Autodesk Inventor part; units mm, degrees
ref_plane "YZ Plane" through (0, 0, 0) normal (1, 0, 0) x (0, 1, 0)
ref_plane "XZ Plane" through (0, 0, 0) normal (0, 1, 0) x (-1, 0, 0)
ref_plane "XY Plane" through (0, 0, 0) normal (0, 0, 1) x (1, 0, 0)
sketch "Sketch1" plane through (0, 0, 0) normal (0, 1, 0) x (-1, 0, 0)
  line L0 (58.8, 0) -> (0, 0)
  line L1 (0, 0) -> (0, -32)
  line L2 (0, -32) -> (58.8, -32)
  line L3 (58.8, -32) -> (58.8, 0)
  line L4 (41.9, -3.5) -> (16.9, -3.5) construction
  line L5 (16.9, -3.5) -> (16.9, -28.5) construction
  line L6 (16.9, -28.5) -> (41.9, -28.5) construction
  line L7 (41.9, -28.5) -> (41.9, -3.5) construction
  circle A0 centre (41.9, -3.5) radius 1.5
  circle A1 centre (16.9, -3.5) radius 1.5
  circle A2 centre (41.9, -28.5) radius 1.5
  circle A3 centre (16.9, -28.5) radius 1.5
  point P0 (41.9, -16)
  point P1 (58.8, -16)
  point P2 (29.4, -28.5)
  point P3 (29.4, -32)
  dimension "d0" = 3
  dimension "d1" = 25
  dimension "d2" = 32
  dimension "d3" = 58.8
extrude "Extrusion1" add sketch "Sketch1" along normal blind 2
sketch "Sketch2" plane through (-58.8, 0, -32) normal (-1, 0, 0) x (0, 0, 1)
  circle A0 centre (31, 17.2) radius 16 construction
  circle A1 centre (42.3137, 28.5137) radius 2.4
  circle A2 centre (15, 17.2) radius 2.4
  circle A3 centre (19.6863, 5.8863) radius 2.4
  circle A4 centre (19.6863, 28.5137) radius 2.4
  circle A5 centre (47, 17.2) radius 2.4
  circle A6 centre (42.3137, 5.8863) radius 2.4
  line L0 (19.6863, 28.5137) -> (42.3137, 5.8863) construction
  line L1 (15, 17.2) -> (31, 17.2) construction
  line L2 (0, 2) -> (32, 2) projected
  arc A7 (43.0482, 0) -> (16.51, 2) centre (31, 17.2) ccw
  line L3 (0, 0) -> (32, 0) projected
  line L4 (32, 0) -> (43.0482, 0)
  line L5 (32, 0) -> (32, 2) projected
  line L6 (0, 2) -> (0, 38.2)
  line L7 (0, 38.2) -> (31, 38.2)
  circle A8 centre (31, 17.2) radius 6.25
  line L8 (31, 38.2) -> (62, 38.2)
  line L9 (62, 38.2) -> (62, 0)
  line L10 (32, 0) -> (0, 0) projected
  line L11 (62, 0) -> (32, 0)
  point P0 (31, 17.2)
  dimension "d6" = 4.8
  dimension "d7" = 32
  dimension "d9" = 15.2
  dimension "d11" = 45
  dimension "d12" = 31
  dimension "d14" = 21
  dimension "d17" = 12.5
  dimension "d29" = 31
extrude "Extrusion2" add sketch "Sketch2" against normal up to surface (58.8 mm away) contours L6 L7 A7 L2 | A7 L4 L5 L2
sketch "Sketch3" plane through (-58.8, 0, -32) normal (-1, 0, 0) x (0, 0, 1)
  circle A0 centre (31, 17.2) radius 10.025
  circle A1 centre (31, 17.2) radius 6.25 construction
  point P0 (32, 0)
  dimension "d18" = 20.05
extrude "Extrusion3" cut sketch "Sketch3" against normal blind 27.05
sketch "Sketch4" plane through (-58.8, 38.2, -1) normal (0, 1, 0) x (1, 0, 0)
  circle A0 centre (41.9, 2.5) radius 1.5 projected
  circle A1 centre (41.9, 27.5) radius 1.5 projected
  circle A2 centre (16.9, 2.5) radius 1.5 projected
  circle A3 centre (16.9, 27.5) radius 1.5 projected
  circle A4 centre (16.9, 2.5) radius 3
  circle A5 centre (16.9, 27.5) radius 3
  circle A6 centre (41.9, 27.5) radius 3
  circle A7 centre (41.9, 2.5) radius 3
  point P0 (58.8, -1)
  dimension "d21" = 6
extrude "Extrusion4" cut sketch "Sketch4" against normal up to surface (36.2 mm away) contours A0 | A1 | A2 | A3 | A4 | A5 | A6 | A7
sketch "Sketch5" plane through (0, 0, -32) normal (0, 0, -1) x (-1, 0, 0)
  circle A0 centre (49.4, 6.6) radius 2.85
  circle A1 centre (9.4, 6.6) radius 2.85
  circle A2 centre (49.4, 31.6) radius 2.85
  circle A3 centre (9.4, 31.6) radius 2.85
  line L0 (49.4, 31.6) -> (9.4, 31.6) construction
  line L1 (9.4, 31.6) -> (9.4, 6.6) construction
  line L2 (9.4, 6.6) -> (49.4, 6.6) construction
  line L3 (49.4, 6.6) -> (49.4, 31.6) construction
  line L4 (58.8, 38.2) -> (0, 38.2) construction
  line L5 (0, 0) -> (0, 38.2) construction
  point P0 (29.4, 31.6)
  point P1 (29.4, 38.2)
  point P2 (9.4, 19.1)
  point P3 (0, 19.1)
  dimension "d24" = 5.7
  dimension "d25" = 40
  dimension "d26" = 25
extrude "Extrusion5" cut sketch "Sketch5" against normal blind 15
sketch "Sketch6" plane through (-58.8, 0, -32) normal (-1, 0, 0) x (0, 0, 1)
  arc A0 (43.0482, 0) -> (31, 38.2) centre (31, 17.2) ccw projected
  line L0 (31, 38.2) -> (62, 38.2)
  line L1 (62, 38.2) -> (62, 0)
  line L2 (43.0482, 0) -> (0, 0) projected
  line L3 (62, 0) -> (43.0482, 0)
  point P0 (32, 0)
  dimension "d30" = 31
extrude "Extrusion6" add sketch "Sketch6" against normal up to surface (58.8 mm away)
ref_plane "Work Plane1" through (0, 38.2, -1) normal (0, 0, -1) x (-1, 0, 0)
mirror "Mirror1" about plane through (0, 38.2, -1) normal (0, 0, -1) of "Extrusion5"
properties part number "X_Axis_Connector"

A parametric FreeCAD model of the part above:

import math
import FreeCAD as App
import Part
import Sketcher
from FreeCAD import Vector
Q = App.Units.Quantity

doc = App.newDocument("Part")
params = doc.addObject("Spreadsheet::Sheet", "Params")
for row, (alias, value) in enumerate([
    ("sketch1_diameter", "3 mm"),
    ("sketch1_height", "32 mm"),
    ("sketch1_width", "58.8 mm"),
    ("pad1_length", "2 mm"),
    ("sketch2_radius", "21 mm"),
    ("sketch2_diameter", "4.8 mm"),
    ("sketch2_diameter2", "12.5 mm"),
    ("sketch2_height", "32 mm"),
    ("sketch2_height2", "31 mm"),
    ("pad2_length", "58.8 mm"),
    ("sketch3_diameter", "20.05 mm"),
    ("pocket1_length", "27.05 mm"),
    ("sketch4_diameter", "6 mm"),
    ("pocket2_length", "36.2 mm"),
    ("sketch5_diameter", "5.7 mm"),
    ("pocket3_length", "15 mm"),
    ("sketch6_height", "31 mm"),
    ("sketch6_radius", "21 mm"),
    ("sketch6_width", "38.2 mm"),
    ("pad3_length", "58.8 mm"),
], start=1):
    params.set(f"A{row}", alias)
    params.set(f"B{row}", "=" + value)
    params.setAlias(f"B{row}", alias)

body = doc.addObject("PartDesign::Body", "Body")

sketch1 = body.newObject("Sketcher::SketchObject", "Sketch")
sketch1.AttachmentSupport = (doc.getObject("XZ_Plane"), [""])
sketch1.MapMode = "FlatFace"
sketch1.addGeometry(Part.LineSegment(Vector(-58.8, -32, 0), Vector(-58.8, 0, 0)), False)
sketch1.addGeometry(Part.LineSegment(Vector(-58.8, 0, 0), Vector(0, 0, 0)), False)
sketch1.addGeometry(Part.LineSegment(Vector(0, 0, 0), Vector(0, -32, 0)), False)
sketch1.addGeometry(Part.LineSegment(Vector(0, -32, 0), Vector(-58.8, -32, 0)), False)
sketch1.addGeometry(Part.Circle(Vector(-16.9, -28.5, 0), Vector(0, 0, 1), 1.5), False)
sketch1.addGeometry(Part.Circle(Vector(-41.9, -28.5, 0), Vector(0, 0, 1), 1.5), False)
sketch1.addGeometry(Part.Circle(Vector(-16.9, -3.5, 0), Vector(0, 0, 1), 1.5), False)
sketch1.addGeometry(Part.Circle(Vector(-41.9, -3.5, 0), Vector(0, 0, 1), 1.5), False)
sketch1.addConstraint(Sketcher.Constraint("Coincident", 0, 2, 1, 1))
sketch1.addConstraint(Sketcher.Constraint("Coincident", 1, 2, 2, 1))
sketch1.addConstraint(Sketcher.Constraint("Coincident", 2, 2, 3, 1))
sketch1.addConstraint(Sketcher.Constraint("Coincident", 3, 2, 0, 1))
sketch1.addConstraint(Sketcher.Constraint("Vertical", 0))
sketch1.addConstraint(Sketcher.Constraint("Horizontal", 1))
sketch1.addConstraint(Sketcher.Constraint("Vertical", 2))
sketch1.addConstraint(Sketcher.Constraint("Horizontal", 3))
sketch1.addConstraint(Sketcher.Constraint("Coincident", 1, 2, -1, 1))
sketch1.addConstraint(Sketcher.Constraint("Equal", 4, 5))
sketch1.addConstraint(Sketcher.Constraint("Equal", 5, 6))
sketch1.addConstraint(Sketcher.Constraint("Equal", 6, 7))
sketch1.addConstraint(Sketcher.Constraint("Horizontal", 4, 3, 5, 3))
sketch1.addConstraint(Sketcher.Constraint("Horizontal", 6, 3, 7, 3))
sketch1.addConstraint(Sketcher.Constraint("Vertical", 4, 3, 6, 3))
sketch1.addConstraint(Sketcher.Constraint("Vertical", 5, 3, 7, 3))
sketch1.addConstraint(Sketcher.Constraint("Diameter", 4, Q("3 mm")))
sketch1.addConstraint(Sketcher.Constraint("DistanceY", 0, 1, 0, 2, Q("32 mm")))
sketch1.addConstraint(Sketcher.Constraint("DistanceX", 1, 1, 1, 2, Q("58.8 mm")))
sketch1.addConstraint(Sketcher.Constraint("DistanceX", 5, 3, 4, 3, Q("25 mm")))
sketch1.addConstraint(Sketcher.Constraint("DistanceY", 4, 3, 6, 3, Q("25 mm")))
sketch1.addConstraint(Sketcher.Constraint("DistanceX", 4, 3, -1, 1, Q("16.9 mm")))
sketch1.addConstraint(Sketcher.Constraint("DistanceY", 4, 3, -1, 1, Q("28.5 mm")))
sketch1.setExpression("Constraints[16]", "Params.sketch1_diameter")
sketch1.setExpression("Constraints[17]", "Params.sketch1_height")
sketch1.setExpression("Constraints[18]", "Params.sketch1_width")
pad1 = body.newObject("PartDesign::Pad", "Pad")
pad1.Profile = sketch1
pad1.setExpression("Length", "Params.pad1_length")
pad1.Reversed = True

sketch2 = body.newObject("Sketcher::SketchObject", "Sketch001")
sketch2.AttachmentSupport = (doc.getObject("YZ_Plane"), [""])
sketch2.MapMode = "FlatFace"
sketch2.AttachmentOffset = App.Placement(Vector(0, 0, -58.8), App.Rotation())
sketch2.addGeometry(Part.LineSegment(Vector(38.2, -32, 0), Vector(2, -32, 0)), False)
sketch2.addGeometry(Part.LineSegment(Vector(2, -32, 0), Vector(2, 0, 0)), False)
sketch2.addGeometry(Part.LineSegment(Vector(2, 0, 0), Vector(0, 0, 0)), False)
sketch2.addGeometry(Part.LineSegment(Vector(0, 0, 0), Vector(0, 11, 0)), False)
sketch2.addGeometry(Part.ArcOfCircle(Part.Circle(Vector(17.2, -1, 0), Vector(0, 0, 1), 21), math.radians(0), math.radians(145)), False)
sketch2.addGeometry(Part.LineSegment(Vector(38.2, -1, 0), Vector(38.2, -32, 0)), False)
sketch2.addGeometry(Part.Circle(Vector(28.5, 10.3, 0), Vector(0, 0, 1), 2.4), False)
sketch2.addGeometry(Part.Circle(Vector(5.9, -12.3, 0), Vector(0, 0, 1), 2.4), False)
sketch2.addGeometry(Part.Circle(Vector(17.2, -17, 0), Vector(0, 0, 1), 2.4), False)
sketch2.addGeometry(Part.Circle(Vector(5.9, 10.3, 0), Vector(0, 0, 1), 2.4), False)
sketch2.addGeometry(Part.Circle(Vector(17.2, -1, 0), Vector(0, 0, 1), 6.2), False)
sketch2.addGeometry(Part.Circle(Vector(17.2, 15, 0), Vector(0, 0, 1), 2.4), False)
sketch2.addGeometry(Part.Circle(Vector(28.5, -12.3, 0), Vector(0, 0, 1), 2.4), False)
sketch2.addConstraint(Sketcher.Constraint("Coincident", 0, 2, 1, 1))
sketch2.addConstraint(Sketcher.Constraint("Coincident", 1, 2, 2, 1))
sketch2.addConstraint(Sketcher.Constraint("Coincident", 2, 2, 3, 1))
sketch2.addConstraint(Sketcher.Constraint("Coincident", 3, 2, 4, 2))
sketch2.addConstraint(Sketcher.Constraint("Tangent", 4, 1, 5, 1))
sketch2.addConstraint(Sketcher.Constraint("Coincident", 5, 2, 0, 1))
sketch2.addConstraint(Sketcher.Constraint("Horizontal", 0))
sketch2.addConstraint(Sketcher.Constraint("Vertical", 1))
sketch2.addConstraint(Sketcher.Constraint("Horizontal", 2))
sketch2.addConstraint(Sketcher.Constraint("Vertical", 3))
sketch2.addConstraint(Sketcher.Constraint("Vertical", 5))
sketch2.addConstraint(Sketcher.Constraint("Coincident", 2, 2, -1, 1))
sketch2.addConstraint(Sketcher.Constraint("Coincident", 10, 3, 4, 3))
sketch2.addConstraint(Sketcher.Constraint("Equal", 6, 7))
sketch2.addConstraint(Sketcher.Constraint("Equal", 7, 8))
sketch2.addConstraint(Sketcher.Constraint("Equal", 8, 9))
sketch2.addConstraint(Sketcher.Constraint("Equal", 9, 11))
sketch2.addConstraint(Sketcher.Constraint("Equal", 11, 12))
sketch2.addConstraint(Sketcher.Constraint("Horizontal", 6, 3, 9, 3))
sketch2.addConstraint(Sketcher.Constraint("Horizontal", 7, 3, 12, 3))
sketch2.addConstraint(Sketcher.Constraint("Vertical", 4, 3, 8, 3))
sketch2.addConstraint(Sketcher.Constraint("Vertical", 7, 3, 9, 3))
sketch2.addConstraint(Sketcher.Constraint("Vertical", 10, 3, 11, 3))
sketch2.addConstraint(Sketcher.Constraint("Vertical", 6, 3, 12, 3))
sketch2.addConstraint(Sketcher.Constraint("Radius", 4, Q("21 mm")))
sketch2.addConstraint(Sketcher.Constraint("Diameter", 6, Q("4.8 mm")))
sketch2.addConstraint(Sketcher.Constraint("Diameter", 10, Q("12.5 mm")))
sketch2.addConstraint(Sketcher.Constraint("DistanceY", 1, 1, 1, 2, Q("32 mm")))
sketch2.addConstraint(Sketcher.Constraint("DistanceY", 5, 2, 5, 1, Q("31 mm")))
sketch2.addConstraint(Sketcher.Constraint("DistanceX", 0, 2, 8, 3, Q("15.2 mm")))
sketch2.addConstraint(Sketcher.Constraint("DistanceX", 2, 2, 2, 1, Q("2 mm")))
sketch2.addConstraint(Sketcher.Constraint("DistanceY", 8, 3, -1, 1, Q("17 mm")))
sketch2.addConstraint(Sketcher.Constraint("DistanceY", -1, 1, 11, 3, Q("15 mm")))
sketch2.addConstraint(Sketcher.Constraint("DistanceX", -1, 1, 6, 3, Q("28.5137 mm")))
sketch2.addConstraint(Sketcher.Constraint("DistanceY", -1, 1, 6, 3, Q("10.3137 mm")))
sketch2.addConstraint(Sketcher.Constraint("DistanceX", -1, 1, 7, 3, Q("5.8863 mm")))
sketch2.addConstraint(Sketcher.Constraint("DistanceY", 7, 3, -1, 1, Q("12.3137 mm")))
sketch2.setExpression("Constraints[24]", "Params.sketch2_radius")
sketch2.setExpression("Constraints[25]", "Params.sketch2_diameter")
sketch2.setExpression("Constraints[26]", "Params.sketch2_diameter2")
sketch2.setExpression("Constraints[27]", "Params.sketch2_height")
sketch2.setExpression("Constraints[28]", "Params.sketch2_height2")
pad2 = body.newObject("PartDesign::Pad", "Pad001")
pad2.Profile = sketch2
pad2.setExpression("Length", "Params.pad2_length")

sketch3 = body.newObject("Sketcher::SketchObject", "Sketch002")
sketch3.AttachmentSupport = (doc.getObject("YZ_Plane"), [""])
sketch3.MapMode = "FlatFace"
sketch3.AttachmentOffset = App.Placement(Vector(0, 0, -58.8), App.Rotation())
sketch3.addGeometry(Part.Circle(Vector(17, -1, 0), Vector(0, 0, 1), 10), False)
sketch3.addConstraint(Sketcher.Constraint("Diameter", 0, Q("20.05 mm")))
sketch3.addConstraint(Sketcher.Constraint("DistanceY", 0, 3, -1, 1, Q("1 mm")))
sketch3.addConstraint(Sketcher.Constraint("DistanceX", -1, 1, 0, 3, Q("17.2 mm")))
sketch3.setExpression("Constraints[0]", "Params.sketch3_diameter")
pocket1 = body.newObject("PartDesign::Pocket", "Pocket")
pocket1.Profile = sketch3
pocket1.setExpression("Length", "Params.pocket1_length")
pocket1.Reversed = True

sketch4 = body.newObject("Sketcher::SketchObject", "Sketch003")
sketch4.AttachmentSupport = (doc.getObject("XZ_Plane"), [""])
sketch4.MapMode = "FlatFace"
sketch4.AttachmentOffset = App.Placement(Vector(0, 0, -38.2), App.Rotation())
sketch4.addGeometry(Part.Circle(Vector(-16.9, -3.5, 0), Vector(0, 0, 1), 3), False)
sketch4.addGeometry(Part.Circle(Vector(-16.9, -28.5, 0), Vector(0, 0, 1), 3), False)
sketch4.addGeometry(Part.Circle(Vector(-41.9, -3.5, 0), Vector(0, 0, 1), 3), False)
sketch4.addGeometry(Part.Circle(Vector(-41.9, -28.5, 0), Vector(0, 0, 1), 3), False)
sketch4.addConstraint(Sketcher.Constraint("Equal", 0, 1))
sketch4.addConstraint(Sketcher.Constraint("Equal", 1, 2))
sketch4.addConstraint(Sketcher.Constraint("Equal", 2, 3))
sketch4.addConstraint(Sketcher.Constraint("Horizontal", 0, 3, 2, 3))
sketch4.addConstraint(Sketcher.Constraint("Horizontal", 1, 3, 3, 3))
sketch4.addConstraint(Sketcher.Constraint("Vertical", 0, 3, 1, 3))
sketch4.addConstraint(Sketcher.Constraint("Vertical", 2, 3, 3, 3))
sketch4.addConstraint(Sketcher.Constraint("Diameter", 0, Q("6 mm")))
sketch4.addConstraint(Sketcher.Constraint("DistanceY", 1, 3, 0, 3, Q("25 mm")))
sketch4.addConstraint(Sketcher.Constraint("DistanceX", 2, 3, 0, 3, Q("25 mm")))
sketch4.addConstraint(Sketcher.Constraint("DistanceX", 0, 3, -1, 1, Q("16.9 mm")))
sketch4.addConstraint(Sketcher.Constraint("DistanceY", 0, 3, -1, 1, Q("3.5 mm")))
sketch4.setExpression("Constraints[7]", "Params.sketch4_diameter")
pocket2 = body.newObject("PartDesign::Pocket", "Pocket001")
pocket2.Profile = sketch4
pocket2.setExpression("Length", "Params.pocket2_length")
pocket2.Reversed = True

sketch5 = body.newObject("Sketcher::SketchObject", "Sketch004")
sketch5.AttachmentSupport = (doc.getObject("XY_Plane"), [""])
sketch5.MapMode = "FlatFace"
sketch5.AttachmentOffset = App.Placement(Vector(0, 0, -32), App.Rotation())
sketch5.addGeometry(Part.Circle(Vector(-49.4, 6.6, 0), Vector(0, 0, 1), 2.9), False)
sketch5.addGeometry(Part.Circle(Vector(-9.4, 6.6, 0), Vector(0, 0, 1), 2.9), False)
sketch5.addGeometry(Part.Circle(Vector(-49.4, 31.6, 0), Vector(0, 0, 1), 2.9), False)
sketch5.addGeometry(Part.Circle(Vector(-9.4, 31.6, 0), Vector(0, 0, 1), 2.9), False)
sketch5.addConstraint(Sketcher.Constraint("Equal", 0, 1))
sketch5.addConstraint(Sketcher.Constraint("Equal", 1, 2))
sketch5.addConstraint(Sketcher.Constraint("Equal", 2, 3))
sketch5.addConstraint(Sketcher.Constraint("Horizontal", 0, 3, 1, 3))
sketch5.addConstraint(Sketcher.Constraint("Horizontal", 2, 3, 3, 3))
sketch5.addConstraint(Sketcher.Constraint("Vertical", 0, 3, 2, 3))
sketch5.addConstraint(Sketcher.Constraint("Vertical", 1, 3, 3, 3))
sketch5.addConstraint(Sketcher.Constraint("Diameter", 0, Q("5.7 mm")))
sketch5.addConstraint(Sketcher.Constraint("DistanceX", 0, 3, 1, 3, Q("40 mm")))
sketch5.addConstraint(Sketcher.Constraint("DistanceY", 0, 3, 2, 3, Q("25 mm")))
sketch5.addConstraint(Sketcher.Constraint("DistanceX", 0, 3, -1, 1, Q("49.4 mm")))
sketch5.addConstraint(Sketcher.Constraint("DistanceY", -1, 1, 0, 3, Q("6.6 mm")))
sketch5.setExpression("Constraints[7]", "Params.sketch5_diameter")
pocket3 = body.newObject("PartDesign::Pocket", "Pocket002")
pocket3.Profile = sketch5
pocket3.setExpression("Length", "Params.pocket3_length")
pocket3.Reversed = True

sketch6 = body.newObject("Sketcher::SketchObject", "Sketch005")
sketch6.AttachmentSupport = (doc.getObject("YZ_Plane"), [""])
sketch6.MapMode = "FlatFace"
sketch6.AttachmentOffset = App.Placement(Vector(0, 0, -58.8), App.Rotation())
sketch6.addGeometry(Part.ArcOfCircle(Part.Circle(Vector(17, -1, 0), Vector(0, 0, 1), 21), math.radians(0), math.radians(145)), False)
sketch6.addGeometry(Part.LineSegment(Vector(0, 11, 0), Vector(0, 30, 0)), False)
sketch6.addGeometry(Part.LineSegment(Vector(0, 30, 0), Vector(38, 30, 0)), False)
sketch6.addGeometry(Part.LineSegment(Vector(38, 30, 0), Vector(38, -1, 0)), False)
sketch6.addConstraint(Sketcher.Constraint("Coincident", 0, 2, 1, 1))
sketch6.addConstraint(Sketcher.Constraint("Coincident", 1, 2, 2, 1))
sketch6.addConstraint(Sketcher.Constraint("Coincident", 2, 2, 3, 1))
sketch6.addConstraint(Sketcher.Constraint("Tangent", 3, 2, 0, 1))
sketch6.addConstraint(Sketcher.Constraint("Vertical", 1))
sketch6.addConstraint(Sketcher.Constraint("Horizontal", 2))
sketch6.addConstraint(Sketcher.Constraint("Vertical", 3))
sketch6.addConstraint(Sketcher.Constraint("PointOnObject", 0, 2, -2))
sketch6.addConstraint(Sketcher.Constraint("DistanceY", 3, 2, 3, 1, Q("31 mm")))
sketch6.addConstraint(Sketcher.Constraint("Radius", 0, Q("21 mm")))
sketch6.addConstraint(Sketcher.Constraint("DistanceX", 2, 1, 2, 2, Q("38.2 mm")))
sketch6.addConstraint(Sketcher.Constraint("DistanceY", 0, 3, -1, 1, Q("1 mm")))
sketch6.setExpression("Constraints[8]", "Params.sketch6_height")
sketch6.setExpression("Constraints[9]", "Params.sketch6_radius")
sketch6.setExpression("Constraints[10]", "Params.sketch6_width")
pad3 = body.newObject("PartDesign::Pad", "Pad002")
pad3.Profile = sketch6
pad3.setExpression("Length", "Params.pad3_length")
doc.recompute()

datumplane = body.newObject("PartDesign::Plane", "DatumPlane")
datumplane.AttachmentSupport = (doc.getObject("XY_Plane"), [""])
datumplane.MapMode = "FlatFace"
datumplane.AttachmentOffset = App.Placement(Vector(0, 0, -1), App.Rotation())
mirrored = body.newObject("PartDesign::Mirrored", "Mirrored")
mirrored.Originals = [pocket3]
mirrored.MirrorPlane = (datumplane, [""])
body.Tip = mirrored

doc.recompute()
